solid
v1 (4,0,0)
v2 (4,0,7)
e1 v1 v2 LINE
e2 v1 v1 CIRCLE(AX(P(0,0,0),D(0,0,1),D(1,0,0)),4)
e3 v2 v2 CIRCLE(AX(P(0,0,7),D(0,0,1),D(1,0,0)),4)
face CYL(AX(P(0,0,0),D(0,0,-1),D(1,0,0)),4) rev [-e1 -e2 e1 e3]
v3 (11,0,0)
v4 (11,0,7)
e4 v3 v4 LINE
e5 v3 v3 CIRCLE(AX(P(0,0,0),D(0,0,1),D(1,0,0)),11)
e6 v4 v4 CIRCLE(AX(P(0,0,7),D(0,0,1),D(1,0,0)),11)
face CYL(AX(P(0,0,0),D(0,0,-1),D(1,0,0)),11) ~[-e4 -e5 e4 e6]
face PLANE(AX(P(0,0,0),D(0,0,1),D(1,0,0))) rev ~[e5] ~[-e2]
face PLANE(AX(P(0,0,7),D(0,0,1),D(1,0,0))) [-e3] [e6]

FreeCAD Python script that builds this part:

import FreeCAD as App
import Part
import Sketcher
from FreeCAD import Vector
Q = App.Units.Quantity

doc = App.newDocument("Part")
body = doc.addObject("PartDesign::Body", "Body")

sketch1 = doc.addObject("Sketcher::SketchObject", "Sketch")
body.addObject(sketch1)
sketch1.AttachmentSupport = (doc.XY_Plane, [""])
sketch1.MapMode = "FlatFace"
sketch1.addGeometry([
    Part.Circle(Vector(0, 0, 0), Vector(0, 0, 1), 11),
    Part.Circle(Vector(0, 0, 0), Vector(0, 0, 1), 4),
], False)
sketch1.addConstraint([
    Sketcher.Constraint("Coincident", 0, 3, -1, 1),
    Sketcher.Constraint("Coincident", 1, 3, -1, 1),
    Sketcher.Constraint("Diameter", 0, Q("22 mm")),
    Sketcher.Constraint("Diameter", 1, Q("8 mm")),
])
pad1 = doc.addObject("PartDesign::Pad", "Pad")
body.addObject(pad1)
pad1.Profile = sketch1
pad1.Length = 7

doc.recompute()
